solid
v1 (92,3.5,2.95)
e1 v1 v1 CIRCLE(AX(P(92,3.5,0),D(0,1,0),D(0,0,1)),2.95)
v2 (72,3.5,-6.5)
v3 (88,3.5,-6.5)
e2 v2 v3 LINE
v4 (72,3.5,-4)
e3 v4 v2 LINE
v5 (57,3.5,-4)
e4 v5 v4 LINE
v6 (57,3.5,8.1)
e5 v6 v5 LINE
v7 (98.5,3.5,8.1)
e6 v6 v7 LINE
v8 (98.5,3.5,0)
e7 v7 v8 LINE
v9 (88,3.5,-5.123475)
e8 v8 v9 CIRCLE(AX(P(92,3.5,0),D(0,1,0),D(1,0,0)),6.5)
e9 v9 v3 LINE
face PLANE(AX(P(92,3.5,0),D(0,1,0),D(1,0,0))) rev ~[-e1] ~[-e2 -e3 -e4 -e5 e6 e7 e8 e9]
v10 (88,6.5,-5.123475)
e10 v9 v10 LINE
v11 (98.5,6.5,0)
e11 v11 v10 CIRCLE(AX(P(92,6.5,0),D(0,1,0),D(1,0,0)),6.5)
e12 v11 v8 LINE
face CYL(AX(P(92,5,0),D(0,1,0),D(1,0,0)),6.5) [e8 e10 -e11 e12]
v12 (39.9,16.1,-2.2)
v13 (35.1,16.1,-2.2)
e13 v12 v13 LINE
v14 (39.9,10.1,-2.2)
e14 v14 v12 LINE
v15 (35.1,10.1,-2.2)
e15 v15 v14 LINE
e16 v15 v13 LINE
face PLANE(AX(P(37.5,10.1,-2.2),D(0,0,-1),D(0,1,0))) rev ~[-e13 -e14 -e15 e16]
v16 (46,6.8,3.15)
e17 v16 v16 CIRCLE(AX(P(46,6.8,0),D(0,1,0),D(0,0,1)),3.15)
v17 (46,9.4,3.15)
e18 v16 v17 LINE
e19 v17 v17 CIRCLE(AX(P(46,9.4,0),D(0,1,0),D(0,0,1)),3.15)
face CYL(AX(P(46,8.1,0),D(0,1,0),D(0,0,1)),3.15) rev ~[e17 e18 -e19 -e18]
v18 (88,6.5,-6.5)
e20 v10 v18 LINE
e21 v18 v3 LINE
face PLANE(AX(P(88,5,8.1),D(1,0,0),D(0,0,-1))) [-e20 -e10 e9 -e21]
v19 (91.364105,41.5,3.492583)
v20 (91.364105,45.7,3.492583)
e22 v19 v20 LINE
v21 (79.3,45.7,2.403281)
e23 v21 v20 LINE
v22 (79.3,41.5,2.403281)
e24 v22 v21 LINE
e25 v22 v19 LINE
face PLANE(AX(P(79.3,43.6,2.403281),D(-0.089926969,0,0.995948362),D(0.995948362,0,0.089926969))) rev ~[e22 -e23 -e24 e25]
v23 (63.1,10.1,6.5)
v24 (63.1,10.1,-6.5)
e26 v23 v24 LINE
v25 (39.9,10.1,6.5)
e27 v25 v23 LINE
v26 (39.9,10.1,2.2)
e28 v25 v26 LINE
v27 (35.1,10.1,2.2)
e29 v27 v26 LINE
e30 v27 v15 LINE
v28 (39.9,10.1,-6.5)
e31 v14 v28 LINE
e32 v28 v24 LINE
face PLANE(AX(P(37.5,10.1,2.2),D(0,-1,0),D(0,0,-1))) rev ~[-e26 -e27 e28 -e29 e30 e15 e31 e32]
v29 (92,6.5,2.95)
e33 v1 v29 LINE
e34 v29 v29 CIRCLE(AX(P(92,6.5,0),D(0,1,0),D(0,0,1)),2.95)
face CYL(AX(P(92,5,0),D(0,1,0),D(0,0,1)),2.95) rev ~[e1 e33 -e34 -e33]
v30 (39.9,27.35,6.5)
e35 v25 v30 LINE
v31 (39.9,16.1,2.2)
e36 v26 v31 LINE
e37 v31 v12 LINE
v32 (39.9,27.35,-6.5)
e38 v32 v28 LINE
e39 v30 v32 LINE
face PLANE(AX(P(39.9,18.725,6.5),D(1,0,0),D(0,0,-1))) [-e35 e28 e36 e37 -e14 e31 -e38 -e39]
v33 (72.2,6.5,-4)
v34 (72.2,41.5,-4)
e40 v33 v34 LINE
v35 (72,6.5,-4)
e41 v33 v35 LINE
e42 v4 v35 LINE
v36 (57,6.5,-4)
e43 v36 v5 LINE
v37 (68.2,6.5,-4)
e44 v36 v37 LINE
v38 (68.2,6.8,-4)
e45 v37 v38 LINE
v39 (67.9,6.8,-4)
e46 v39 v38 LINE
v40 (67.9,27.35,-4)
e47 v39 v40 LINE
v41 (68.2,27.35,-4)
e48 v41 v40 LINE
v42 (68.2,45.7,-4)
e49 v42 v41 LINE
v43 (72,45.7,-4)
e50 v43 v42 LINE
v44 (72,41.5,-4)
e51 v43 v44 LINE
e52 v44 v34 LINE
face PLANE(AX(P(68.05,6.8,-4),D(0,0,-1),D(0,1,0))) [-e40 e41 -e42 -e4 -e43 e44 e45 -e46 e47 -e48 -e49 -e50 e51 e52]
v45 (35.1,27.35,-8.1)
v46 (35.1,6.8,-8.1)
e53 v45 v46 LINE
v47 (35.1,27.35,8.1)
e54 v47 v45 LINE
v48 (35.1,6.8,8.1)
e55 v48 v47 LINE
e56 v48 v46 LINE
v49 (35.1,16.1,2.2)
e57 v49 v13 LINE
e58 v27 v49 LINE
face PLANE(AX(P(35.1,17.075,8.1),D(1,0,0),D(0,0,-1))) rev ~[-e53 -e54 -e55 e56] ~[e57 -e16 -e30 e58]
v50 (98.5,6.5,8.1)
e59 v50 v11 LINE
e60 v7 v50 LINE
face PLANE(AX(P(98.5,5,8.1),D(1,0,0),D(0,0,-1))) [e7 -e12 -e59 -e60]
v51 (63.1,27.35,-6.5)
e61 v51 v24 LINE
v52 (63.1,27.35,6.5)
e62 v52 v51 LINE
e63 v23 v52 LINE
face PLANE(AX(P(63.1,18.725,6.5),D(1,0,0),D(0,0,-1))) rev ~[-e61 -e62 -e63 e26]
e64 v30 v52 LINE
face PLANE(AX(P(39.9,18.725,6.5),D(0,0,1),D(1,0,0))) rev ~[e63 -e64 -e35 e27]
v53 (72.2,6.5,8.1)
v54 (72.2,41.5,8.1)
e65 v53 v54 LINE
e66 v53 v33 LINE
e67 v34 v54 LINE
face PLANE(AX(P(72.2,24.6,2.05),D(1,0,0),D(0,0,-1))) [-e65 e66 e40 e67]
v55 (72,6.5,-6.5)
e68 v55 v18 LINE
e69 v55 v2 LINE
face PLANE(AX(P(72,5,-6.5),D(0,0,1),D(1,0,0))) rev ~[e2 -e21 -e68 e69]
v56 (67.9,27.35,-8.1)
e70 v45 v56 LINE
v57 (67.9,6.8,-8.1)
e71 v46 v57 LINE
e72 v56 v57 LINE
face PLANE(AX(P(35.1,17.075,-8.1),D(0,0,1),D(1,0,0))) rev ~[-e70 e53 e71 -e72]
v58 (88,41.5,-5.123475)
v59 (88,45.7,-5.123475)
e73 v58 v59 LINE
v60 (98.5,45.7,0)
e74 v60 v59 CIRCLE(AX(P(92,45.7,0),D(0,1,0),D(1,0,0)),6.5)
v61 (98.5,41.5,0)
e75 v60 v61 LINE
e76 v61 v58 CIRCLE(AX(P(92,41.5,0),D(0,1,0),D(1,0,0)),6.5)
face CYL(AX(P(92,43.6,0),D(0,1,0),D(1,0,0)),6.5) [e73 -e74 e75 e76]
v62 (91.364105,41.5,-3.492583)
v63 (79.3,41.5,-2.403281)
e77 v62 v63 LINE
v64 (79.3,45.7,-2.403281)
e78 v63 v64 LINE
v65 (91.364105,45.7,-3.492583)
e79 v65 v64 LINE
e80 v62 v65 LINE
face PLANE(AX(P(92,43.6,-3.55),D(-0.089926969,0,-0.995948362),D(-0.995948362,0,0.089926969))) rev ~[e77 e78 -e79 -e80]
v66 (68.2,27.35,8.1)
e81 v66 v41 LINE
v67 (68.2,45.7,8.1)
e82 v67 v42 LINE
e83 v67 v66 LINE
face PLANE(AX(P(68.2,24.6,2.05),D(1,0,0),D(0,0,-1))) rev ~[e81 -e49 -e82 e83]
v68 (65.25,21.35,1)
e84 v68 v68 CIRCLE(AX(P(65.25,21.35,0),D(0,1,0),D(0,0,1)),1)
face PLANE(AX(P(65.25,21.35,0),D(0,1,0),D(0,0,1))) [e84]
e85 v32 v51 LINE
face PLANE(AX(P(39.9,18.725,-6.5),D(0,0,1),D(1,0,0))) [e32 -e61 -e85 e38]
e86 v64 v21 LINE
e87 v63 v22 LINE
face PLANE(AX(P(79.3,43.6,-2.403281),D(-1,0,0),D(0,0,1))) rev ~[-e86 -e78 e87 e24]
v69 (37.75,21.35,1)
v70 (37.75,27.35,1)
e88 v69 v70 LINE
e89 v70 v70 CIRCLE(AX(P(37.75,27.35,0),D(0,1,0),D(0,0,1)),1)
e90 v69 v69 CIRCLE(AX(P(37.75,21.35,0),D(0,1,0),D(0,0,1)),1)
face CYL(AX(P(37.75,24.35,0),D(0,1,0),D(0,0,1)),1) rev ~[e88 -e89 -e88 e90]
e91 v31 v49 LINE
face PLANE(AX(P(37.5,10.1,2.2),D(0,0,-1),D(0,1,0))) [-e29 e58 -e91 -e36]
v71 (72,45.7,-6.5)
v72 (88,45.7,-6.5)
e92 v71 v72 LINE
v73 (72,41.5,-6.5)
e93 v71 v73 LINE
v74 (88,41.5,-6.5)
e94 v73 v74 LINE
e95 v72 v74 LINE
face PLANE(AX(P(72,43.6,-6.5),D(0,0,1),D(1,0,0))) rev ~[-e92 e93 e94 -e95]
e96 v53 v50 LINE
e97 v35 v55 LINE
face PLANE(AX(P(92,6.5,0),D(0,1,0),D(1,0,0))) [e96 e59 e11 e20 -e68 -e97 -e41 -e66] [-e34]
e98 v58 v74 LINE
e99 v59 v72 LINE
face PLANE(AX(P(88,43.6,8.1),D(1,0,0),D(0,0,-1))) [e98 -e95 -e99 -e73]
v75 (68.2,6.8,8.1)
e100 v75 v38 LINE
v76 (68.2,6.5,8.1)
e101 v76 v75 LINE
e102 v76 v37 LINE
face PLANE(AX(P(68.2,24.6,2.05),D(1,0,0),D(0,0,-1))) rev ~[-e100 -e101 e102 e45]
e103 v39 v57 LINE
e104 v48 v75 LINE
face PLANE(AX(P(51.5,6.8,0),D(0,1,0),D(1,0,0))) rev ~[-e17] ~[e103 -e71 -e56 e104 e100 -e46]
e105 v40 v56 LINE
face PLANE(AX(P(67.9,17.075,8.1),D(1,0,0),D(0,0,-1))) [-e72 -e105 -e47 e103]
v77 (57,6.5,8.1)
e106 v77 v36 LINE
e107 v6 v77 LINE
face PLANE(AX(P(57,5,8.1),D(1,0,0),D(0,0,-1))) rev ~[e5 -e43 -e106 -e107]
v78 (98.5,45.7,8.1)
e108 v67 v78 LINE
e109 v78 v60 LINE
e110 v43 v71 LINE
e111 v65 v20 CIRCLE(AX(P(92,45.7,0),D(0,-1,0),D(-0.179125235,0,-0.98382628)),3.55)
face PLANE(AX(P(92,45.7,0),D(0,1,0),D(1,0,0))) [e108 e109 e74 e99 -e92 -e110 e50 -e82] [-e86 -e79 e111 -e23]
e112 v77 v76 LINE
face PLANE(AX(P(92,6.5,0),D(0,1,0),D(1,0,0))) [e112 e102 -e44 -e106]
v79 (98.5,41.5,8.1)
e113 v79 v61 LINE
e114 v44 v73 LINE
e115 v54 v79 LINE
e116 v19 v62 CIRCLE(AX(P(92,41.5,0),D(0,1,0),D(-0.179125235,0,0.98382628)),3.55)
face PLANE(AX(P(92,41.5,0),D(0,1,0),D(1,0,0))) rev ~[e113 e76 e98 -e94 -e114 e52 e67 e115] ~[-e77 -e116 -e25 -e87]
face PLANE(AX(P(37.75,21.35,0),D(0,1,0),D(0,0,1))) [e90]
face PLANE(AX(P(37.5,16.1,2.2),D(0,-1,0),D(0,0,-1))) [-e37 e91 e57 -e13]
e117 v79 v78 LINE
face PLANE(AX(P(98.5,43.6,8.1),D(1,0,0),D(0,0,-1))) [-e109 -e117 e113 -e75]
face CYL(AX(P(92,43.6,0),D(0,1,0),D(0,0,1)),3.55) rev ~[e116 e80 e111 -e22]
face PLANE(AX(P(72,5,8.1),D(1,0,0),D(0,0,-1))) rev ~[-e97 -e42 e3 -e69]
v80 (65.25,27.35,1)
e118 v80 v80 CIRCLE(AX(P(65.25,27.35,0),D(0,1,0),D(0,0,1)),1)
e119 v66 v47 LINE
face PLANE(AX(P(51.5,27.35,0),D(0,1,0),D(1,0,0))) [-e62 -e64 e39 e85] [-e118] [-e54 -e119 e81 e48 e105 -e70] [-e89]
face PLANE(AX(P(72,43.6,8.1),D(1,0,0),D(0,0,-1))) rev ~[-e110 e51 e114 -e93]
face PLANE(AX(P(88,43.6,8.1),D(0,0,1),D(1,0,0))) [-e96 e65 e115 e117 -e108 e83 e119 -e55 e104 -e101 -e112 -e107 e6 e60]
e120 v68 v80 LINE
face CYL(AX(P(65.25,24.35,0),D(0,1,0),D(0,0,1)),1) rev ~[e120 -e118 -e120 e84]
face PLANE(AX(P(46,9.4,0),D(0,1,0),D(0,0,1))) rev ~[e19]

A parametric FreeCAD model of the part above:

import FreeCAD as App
import Part
import Sketcher
Q = App.Units.Quantity

doc = App.newDocument("Part")
body = doc.addObject("PartDesign::Body", "Body")

# Sketch on XZ plane
sketch1 = body.newObject("Sketcher::SketchObject", "Sketch")
sketch1.AttachmentSupport = (doc.getObject("XZ_Plane"), [""])
sketch1.MapMode = "FlatFace"
sketch1.AttachmentOffset = App.Placement(App.Vector(0, 0, -17.075), App.Rotation())
sketch1.addGeometry([
    Part.LineSegment(App.Vector(35, -8, 0), App.Vector(35, 8, 0)),
    Part.LineSegment(App.Vector(35, 8, 0), App.Vector(68, 8, 0)),
    Part.LineSegment(App.Vector(68, 8, 0), App.Vector(68, -8, 0)),
    Part.LineSegment(App.Vector(68, -8, 0), App.Vector(35, -8, 0)),
], False)
sketch1.addConstraint([
    Sketcher.Constraint("Coincident", 0, 2, 1, 1),
    Sketcher.Constraint("Coincident", 1, 2, 2, 1),
    Sketcher.Constraint("Coincident", 2, 2, 3, 1),
    Sketcher.Constraint("Coincident", 3, 2, 0, 1),
    Sketcher.Constraint("Vertical", 0),
    Sketcher.Constraint("Horizontal", 1),
    Sketcher.Constraint("Vertical", 2),
    Sketcher.Constraint("Horizontal", 3),
    Sketcher.Constraint("DistanceX", 1, 1, 1, 2, Q("32.8 mm")),
    Sketcher.Constraint("DistanceY", 0, 1, 0, 2, Q("16.2 mm")),
    Sketcher.Constraint("DistanceX", -1, 1, 0, 2, Q("35.1 mm")),
    Sketcher.Constraint("DistanceY", -1, 1, 0, 2, Q("8.1 mm")),
])
pad1 = body.newObject("PartDesign::Pad", "Pad")
pad1.Profile = sketch1
pad1.Length = 20.55
pad1.Midplane = True
body2 = doc.addObject("PartDesign::Body", "Body001")

# Sketch on XZ plane
sketch2 = body2.newObject("Sketcher::SketchObject", "Sketch001")
sketch2.AttachmentSupport = (doc.getObject("XZ_Plane001"), [""])
sketch2.MapMode = "FlatFace"
sketch2.AttachmentOffset = App.Placement(App.Vector(0, 0, -5), App.Rotation())
sketch2.addGeometry([
    Part.LineSegment(App.Vector(57, -4, 0), App.Vector(57, 8, 0)),
    Part.LineSegment(App.Vector(57, 8, 0), App.Vector(88, 8, 0)),
    Part.LineSegment(App.Vector(88, 8, 0), App.Vector(88, -4, 0)),
    Part.LineSegment(App.Vector(88, -4, 0), App.Vector(57, -4, 0)),
], False)
sketch2.addConstraint([
    Sketcher.Constraint("Coincident", 0, 2, 1, 1),
    Sketcher.Constraint("Coincident", 1, 2, 2, 1),
    Sketcher.Constraint("Coincident", 2, 2, 3, 1),
    Sketcher.Constraint("Coincident", 3, 2, 0, 1),
    Sketcher.Constraint("Vertical", 0),
    Sketcher.Constraint("Horizontal", 1),
    Sketcher.Constraint("Vertical", 2),
    Sketcher.Constraint("Horizontal", 3),
    Sketcher.Constraint("DistanceX", 1, 1, 1, 2, Q("31 mm")),
    Sketcher.Constraint("DistanceY", 0, 1, 0, 2, Q("12.1 mm")),
    Sketcher.Constraint("DistanceX", -1, 1, 0, 2, Q("57 mm")),
    Sketcher.Constraint("DistanceY", 2, 2, -1, 1, Q("4 mm")),
])
pad2 = body2.newObject("PartDesign::Pad", "Pad001")
pad2.Profile = sketch2
pad2.Length = 3
pad2.Midplane = True

# Sketch on XZ plane
sketch3 = body2.newObject("Sketcher::SketchObject", "Sketch002")
sketch3.AttachmentSupport = (doc.getObject("XZ_Plane001"), [""])
sketch3.MapMode = "FlatFace"
sketch3.AttachmentOffset = App.Placement(App.Vector(0, 0, -5), App.Rotation())
sketch3.addGeometry([
    Part.LineSegment(App.Vector(72, -6, 0), App.Vector(72, 8, 0)),
    Part.LineSegment(App.Vector(72, 8, 0), App.Vector(88, 8, 0)),
    Part.LineSegment(App.Vector(88, 8, 0), App.Vector(88, -6, 0)),
    Part.LineSegment(App.Vector(88, -6, 0), App.Vector(72, -6, 0)),
], False)
sketch3.addConstraint([
    Sketcher.Constraint("Coincident", 0, 2, 1, 1),
    Sketcher.Constraint("Coincident", 1, 2, 2, 1),
    Sketcher.Constraint("Coincident", 2, 2, 3, 1),
    Sketcher.Constraint("Coincident", 3, 2, 0, 1),
    Sketcher.Constraint("Vertical", 0),
    Sketcher.Constraint("Horizontal", 1),
    Sketcher.Constraint("Vertical", 2),
    Sketcher.Constraint("Horizontal", 3),
    Sketcher.Constraint("DistanceX", 1, 1, 1, 2, Q("16 mm")),
    Sketcher.Constraint("DistanceY", 0, 1, 0, 2, Q("14.6 mm")),
    Sketcher.Constraint("DistanceX", -1, 1, 0, 2, Q("72 mm")),
    Sketcher.Constraint("DistanceY", -1, 1, 0, 2, Q("8.1 mm")),
])
pad3 = body2.newObject("PartDesign::Pad", "Pad002")
pad3.Profile = sketch3
pad3.Length = 3
pad3.Midplane = True

# Sketch on XZ plane
sketch4 = body2.newObject("Sketcher::SketchObject", "Sketch003")
sketch4.AttachmentSupport = (doc.getObject("XZ_Plane001"), [""])
sketch4.MapMode = "FlatFace"
sketch4.AttachmentOffset = App.Placement(App.Vector(0, 0, -5), App.Rotation())
sketch4.addGeometry([
    Part.LineSegment(App.Vector(88, 0, 0), App.Vector(88, 8, 0)),
    Part.LineSegment(App.Vector(88, 8, 0), App.Vector(98, 8, 0)),
    Part.LineSegment(App.Vector(98, 8, 0), App.Vector(98, 0, 0)),
    Part.LineSegment(App.Vector(98, 0, 0), App.Vector(88, 0, 0)),
], False)
sketch4.addConstraint([
    Sketcher.Constraint("Coincident", 0, 2, 1, 1),
    Sketcher.Constraint("Coincident", 1, 2, 2, 1),
    Sketcher.Constraint("Coincident", 2, 2, 3, 1),
    Sketcher.Constraint("Coincident", 3, 2, 0, 1),
    Sketcher.Constraint("Vertical", 0),
    Sketcher.Constraint("Horizontal", 1),
    Sketcher.Constraint("Vertical", 2),
    Sketcher.Constraint("Horizontal", 3),
    Sketcher.Constraint("PointOnObject", 2, 2, -1),
    Sketcher.Constraint("DistanceX", 1, 1, 1, 2, Q("10.5 mm")),
    Sketcher.Constraint("DistanceY", 0, 1, 0, 2, Q("8.1 mm")),
    Sketcher.Constraint("DistanceX", -1, 1, 0, 2, Q("88 mm")),
])
pad4 = body2.newObject("PartDesign::Pad", "Pad003")
pad4.Profile = sketch4
pad4.Length = 3
pad4.Midplane = True

# Sketch on XZ plane
sketch5 = body2.newObject("Sketcher::SketchObject", "Sketch004")
sketch5.AttachmentSupport = (doc.getObject("XZ_Plane001"), [""])
sketch5.MapMode = "FlatFace"
sketch5.AttachmentOffset = App.Placement(App.Vector(0, 0, -5), App.Rotation())
sketch5.addGeometry(Part.Circle(App.Vector(92, 0, 0), App.Vector(0, 0, 1), 6), False)
sketch5.addConstraint([
    Sketcher.Constraint("PointOnObject", 0, 3, -1),
    Sketcher.Constraint("Diameter", 0, Q("13 mm")),
    Sketcher.Constraint("DistanceX", -1, 1, 0, 3, Q("92 mm")),
])
pad5 = body2.newObject("PartDesign::Pad", "Pad004")
pad5.Profile = sketch5
pad5.Length = 3
pad5.Midplane = True

# Sketch on XZ plane
sketch6 = body2.newObject("Sketcher::SketchObject", "Sketch005")
sketch6.AttachmentSupport = (doc.getObject("XZ_Plane001"), [""])
sketch6.MapMode = "FlatFace"
sketch6.AttachmentOffset = App.Placement(App.Vector(0, 0, -5), App.Rotation())
sketch6.addGeometry(Part.Circle(App.Vector(92, 0, 0), App.Vector(0, 0, 1), 3), False)
sketch6.addConstraint([
    Sketcher.Constraint("PointOnObject", 0, 3, -1),
    Sketcher.Constraint("Diameter", 0, Q("5.9 mm")),
    Sketcher.Constraint("DistanceX", -1, 1, 0, 3, Q("92 mm")),
])
pocket1 = body2.newObject("PartDesign::Pocket", "Pocket")
pocket1.Profile = sketch6
pocket1.Length = 3
pocket1.Midplane = True

# Sketch on YZ plane
sketch7 = body2.newObject("Sketcher::SketchObject", "Sketch006")
sketch7.AttachmentSupport = (doc.getObject("YZ_Plane001"), [""])
sketch7.MapMode = "FlatFace"
sketch7.AttachmentOffset = App.Placement(App.Vector(0, 0, 70.2), App.Rotation())
sketch7.addGeometry([
    Part.LineSegment(App.Vector(46, 8, 0), App.Vector(4, 8, 0)),
    Part.LineSegment(App.Vector(4, 8, 0), App.Vector(4, -4, 0)),
    Part.LineSegment(App.Vector(4, -4, 0), App.Vector(46, -4, 0)),
    Part.LineSegment(App.Vector(46, -4, 0), App.Vector(46, 8, 0)),
], False)
sketch7.addConstraint([
    Sketcher.Constraint("Coincident", 0, 2, 1, 1),
    Sketcher.Constraint("Coincident", 1, 2, 2, 1),
    Sketcher.Constraint("Coincident", 2, 2, 3, 1),
    Sketcher.Constraint("Coincident", 3, 2, 0, 1),
    Sketcher.Constraint("Horizontal", 0),
    Sketcher.Constraint("Vertical", 1),
    Sketcher.Constraint("Horizontal", 2),
    Sketcher.Constraint("Vertical", 3),
    Sketcher.Constraint("DistanceX", 0, 2, 0, 1, Q("42.2 mm")),
    Sketcher.Constraint("DistanceY", 1, 2, 1, 1, Q("12.1 mm")),
    Sketcher.Constraint("DistanceY", 1, 2, -1, 1, Q("4 mm")),
    Sketcher.Constraint("DistanceX", -1, 1, 0, 2, Q("3.5 mm")),
])
pad6 = body2.newObject("PartDesign::Pad", "Pad005")
pad6.Profile = sketch7
pad6.Length = 4
pad6.Midplane = True
body.AllowCompound = True
doc.recompute()

boolean = body.newObject("PartDesign::Boolean", "Boolean")
boolean.Type = "Fuse"
boolean.addObjects([body2])

# Sketch on YZ plane
sketch8 = body.newObject("Sketcher::SketchObject", "Sketch007")
sketch8.AttachmentSupport = (doc.getObject("YZ_Plane"), [""])
sketch8.MapMode = "FlatFace"
sketch8.AttachmentOffset = App.Placement(App.Vector(0, 0, 68.05), App.Rotation())
sketch8.addGeometry([
    Part.LineSegment(App.Vector(27, 8, 0), App.Vector(7, 8, 0)),
    Part.LineSegment(App.Vector(7, 8, 0), App.Vector(7, -4, 0)),
    Part.LineSegment(App.Vector(7, -4, 0), App.Vector(27, -4, 0)),
    Part.LineSegment(App.Vector(27, -4, 0), App.Vector(27, 8, 0)),
], False)
sketch8.addConstraint([
    Sketcher.Constraint("Coincident", 0, 2, 1, 1),
    Sketcher.Constraint("Coincident", 1, 2, 2, 1),
    Sketcher.Constraint("Coincident", 2, 2, 3, 1),
    Sketcher.Constraint("Coincident", 3, 2, 0, 1),
    Sketcher.Constraint("Horizontal", 0),
    Sketcher.Constraint("Vertical", 1),
    Sketcher.Constraint("Horizontal", 2),
    Sketcher.Constraint("Vertical", 3),
    Sketcher.Constraint("DistanceY", 1, 2, 1, 1, Q("12.1 mm")),
    Sketcher.Constraint("DistanceY", 1, 2, -1, 1, Q("4 mm")),
    Sketcher.Constraint("DistanceX", 0, 2, 0, 1, Q("20.55 mm")),
    Sketcher.Constraint("DistanceX", -1, 1, 0, 2, Q("6.8 mm")),
])
pad7 = body.newObject("PartDesign::Pad", "Pad006")
pad7.Profile = sketch8
pad7.Length = 2.3
pad7.Midplane = True

# Sketch on XZ plane
sketch9 = body.newObject("Sketcher::SketchObject", "Sketch008")
sketch9.AttachmentSupport = (doc.getObject("XZ_Plane"), [""])
sketch9.MapMode = "FlatFace"
sketch9.AttachmentOffset = App.Placement(App.Vector(0, 0, -43.6), App.Rotation())
sketch9.addGeometry([
    Part.LineSegment(App.Vector(68, -4, 0), App.Vector(68, 8, 0)),
    Part.LineSegment(App.Vector(68, 8, 0), App.Vector(88, 8, 0)),
    Part.LineSegment(App.Vector(88, 8, 0), App.Vector(88, -4, 0)),
    Part.LineSegment(App.Vector(88, -4, 0), App.Vector(68, -4, 0)),
], False)
sketch9.addConstraint([
    Sketcher.Constraint("Coincident", 0, 2, 1, 1),
    Sketcher.Constraint("Coincident", 1, 2, 2, 1),
    Sketcher.Constraint("Coincident", 2, 2, 3, 1),
    Sketcher.Constraint("Coincident", 3, 2, 0, 1),
    Sketcher.Constraint("Vertical", 0),
    Sketcher.Constraint("Horizontal", 1),
    Sketcher.Constraint("Vertical", 2),
    Sketcher.Constraint("Horizontal", 3),
    Sketcher.Constraint("DistanceX", 1, 1, 1, 2, Q("19.8 mm")),
    Sketcher.Constraint("DistanceY", 0, 1, 0, 2, Q("12.1 mm")),
    Sketcher.Constraint("DistanceX", -1, 1, 1, 2, Q("88 mm")),
    Sketcher.Constraint("DistanceY", 2, 2, -1, 1, Q("4 mm")),
])
pad8 = body.newObject("PartDesign::Pad", "Pad007")
pad8.Profile = sketch9
pad8.Length = 4.2
pad8.Midplane = True

# Sketch on XZ plane
sketch10 = body.newObject("Sketcher::SketchObject", "Sketch009")
sketch10.AttachmentSupport = (doc.getObject("XZ_Plane"), [""])
sketch10.MapMode = "FlatFace"
sketch10.AttachmentOffset = App.Placement(App.Vector(0, 0, -43.6), App.Rotation())
sketch10.addGeometry([
    Part.LineSegment(App.Vector(72, -6, 0), App.Vector(72, 8, 0)),
    Part.LineSegment(App.Vector(72, 8, 0), App.Vector(88, 8, 0)),
    Part.LineSegment(App.Vector(88, 8, 0), App.Vector(88, -6, 0)),
    Part.LineSegment(App.Vector(88, -6, 0), App.Vector(72, -6, 0)),
], False)
sketch10.addConstraint([
    Sketcher.Constraint("Coincident", 0, 2, 1, 1),
    Sketcher.Constraint("Coincident", 1, 2, 2, 1),
    Sketcher.Constraint("Coincident", 2, 2, 3, 1),
    Sketcher.Constraint("Coincident", 3, 2, 0, 1),
    Sketcher.Constraint("Vertical", 0),
    Sketcher.Constraint("Horizontal", 1),
    Sketcher.Constraint("Vertical", 2),
    Sketcher.Constraint("Horizontal", 3),
    Sketcher.Constraint("DistanceX", 1, 1, 1, 2, Q("16 mm")),
    Sketcher.Constraint("DistanceY", 0, 1, 0, 2, Q("14.6 mm")),
    Sketcher.Constraint("DistanceX", -1, 1, 0, 2, Q("72 mm")),
    Sketcher.Constraint("DistanceY", -1, 1, 0, 2, Q("8.1 mm")),
])
pad9 = body.newObject("PartDesign::Pad", "Pad008")
pad9.Profile = sketch10
pad9.Length = 4.2
pad9.Midplane = True

# Sketch on XZ plane
sketch11 = body.newObject("Sketcher::SketchObject", "Sketch010")
sketch11.AttachmentSupport = (doc.getObject("XZ_Plane"), [""])
sketch11.MapMode = "FlatFace"
sketch11.AttachmentOffset = App.Placement(App.Vector(0, 0, -43.6), App.Rotation())
sketch11.addGeometry([
    Part.LineSegment(App.Vector(88, 0, 0), App.Vector(88, 8, 0)),
    Part.LineSegment(App.Vector(88, 8, 0), App.Vector(98, 8, 0)),
    Part.LineSegment(App.Vector(98, 8, 0), App.Vector(98, 0, 0)),
    Part.LineSegment(App.Vector(98, 0, 0), App.Vector(88, 0, 0)),
], False)
sketch11.addConstraint([
    Sketcher.Constraint("Coincident", 0, 2, 1, 1),
    Sketcher.Constraint("Coincident", 1, 2, 2, 1),
    Sketcher.Constraint("Coincident", 2, 2, 3, 1),
    Sketcher.Constraint("Coincident", 3, 2, 0, 1),
    Sketcher.Constraint("Vertical", 0),
    Sketcher.Constraint("Horizontal", 1),
    Sketcher.Constraint("Vertical", 2),
    Sketcher.Constraint("Horizontal", 3),
    Sketcher.Constraint("PointOnObject", 2, 2, -1),
    Sketcher.Constraint("DistanceX", 1, 1, 1, 2, Q("10.5 mm")),
    Sketcher.Constraint("DistanceY", 0, 1, 0, 2, Q("8.1 mm")),
    Sketcher.Constraint("DistanceX", -1, 1, 0, 2, Q("88 mm")),
])
pad10 = body.newObject("PartDesign::Pad", "Pad009")
pad10.Profile = sketch11
pad10.Length = 4.2
pad10.Midplane = True

# Sketch on XZ plane
sketch12 = body.newObject("Sketcher::SketchObject", "Sketch011")
sketch12.AttachmentSupport = (doc.getObject("XZ_Plane"), [""])
sketch12.MapMode = "FlatFace"
sketch12.AttachmentOffset = App.Placement(App.Vector(0, 0, -43.6), App.Rotation())
sketch12.addGeometry(Part.Circle(App.Vector(92, 0, 0), App.Vector(0, 0, 1), 6), False)
sketch12.addConstraint([
    Sketcher.Constraint("PointOnObject", 0, 3, -1),
    Sketcher.Constraint("Diameter", 0, Q("13 mm")),
    Sketcher.Constraint("DistanceX", -1, 1, 0, 3, Q("92 mm")),
])
pad11 = body.newObject("PartDesign::Pad", "Pad010")
pad11.Profile = sketch12
pad11.Length = 4.2
pad11.Midplane = True

# Sketch on XZ plane
sketch13 = body.newObject("Sketcher::SketchObject", "Sketch012")
sketch13.AttachmentSupport = (doc.getObject("XZ_Plane"), [""])
sketch13.MapMode = "FlatFace"
sketch13.AttachmentOffset = App.Placement(App.Vector(0, 0, -43.6), App.Rotation())
sketch13.addGeometry(Part.Circle(App.Vector(92, 0, 0), App.Vector(0, 0, 1), 3.5), False)
sketch13.addConstraint([
    Sketcher.Constraint("PointOnObject", 0, 3, -1),
    Sketcher.Constraint("Diameter", 0, Q("7.1 mm")),
    Sketcher.Constraint("DistanceX", -1, 1, 0, 3, Q("92 mm")),
])
pocket2 = body.newObject("PartDesign::Pocket", "Pocket001")
pocket2.Profile = sketch13
pocket2.Length = 4.2
pocket2.Midplane = True

# Sketch on XZ plane
sketch14 = body.newObject("Sketcher::SketchObject", "Sketch013")
sketch14.AttachmentSupport = (doc.getObject("XZ_Plane"), [""])
sketch14.MapMode = "FlatFace"
sketch14.AttachmentOffset = App.Placement(App.Vector(0, 0, -43.6), App.Rotation())
sketch14.addGeometry([
    Part.LineSegment(App.Vector(92, -3.5, 0), App.Vector(79.3, -2.4, 0)),
    Part.LineSegment(App.Vector(79.3, -2.4, 0), App.Vector(79.3, 2.4, 0)),
    Part.LineSegment(App.Vector(79.3, 2.4, 0), App.Vector(92, 3.5, 0)),
    Part.LineSegment(App.Vector(92, 3.5, 0), App.Vector(92, -3.5, 0)),
], False)
sketch14.addConstraint([
    Sketcher.Constraint("Coincident", 0, 2, 1, 1),
    Sketcher.Constraint("Coincident", 1, 2, 2, 1),
    Sketcher.Constraint("Coincident", 2, 2, 3, 1),
    Sketcher.Constraint("Coincident", 3, 2, 0, 1),
    Sketcher.Constraint("Vertical", 1),
    Sketcher.Constraint("Vertical", 3),
    Sketcher.Constraint("Equal", 0, 2),
    Sketcher.Constraint("DistanceY", 3, 2, 3, 1, Q("7.1 mm")),
    Sketcher.Constraint("DistanceX", -1, 1, 2, 2, Q("92 mm")),
    Sketcher.Constraint("DistanceX", -1, 1, 0, 2, Q("79.3 mm")),
    Sketcher.Constraint("DistanceY", -1, 1, 2, 2, Q("3.55 mm")),
    Sketcher.Constraint("DistanceY", 1, 1, 1, 2, Q("4.806563 mm")),
])
pocket3 = body.newObject("PartDesign::Pocket", "Pocket002")
pocket3.Profile = sketch14
pocket3.Length = 4.2
pocket3.Midplane = True

# Sketch on XZ plane
sketch15 = body.newObject("Sketcher::SketchObject", "Sketch014")
sketch15.AttachmentSupport = (doc.getObject("XZ_Plane"), [""])
sketch15.MapMode = "FlatFace"
sketch15.AttachmentOffset = App.Placement(App.Vector(0, 0, -18.725), App.Rotation())
sketch15.addGeometry([
    Part.LineSegment(App.Vector(40, -6, 0), App.Vector(40, 6, 0)),
    Part.LineSegment(App.Vector(40, 6, 0), App.Vector(63, 6, 0)),
    Part.LineSegment(App.Vector(63, 6, 0), App.Vector(63, -6, 0)),
    Part.LineSegment(App.Vector(63, -6, 0), App.Vector(40, -6, 0)),
], False)
sketch15.addConstraint([
    Sketcher.Constraint("Coincident", 0, 2, 1, 1),
    Sketcher.Constraint("Coincident", 1, 2, 2, 1),
    Sketcher.Constraint("Coincident", 2, 2, 3, 1),
    Sketcher.Constraint("Coincident", 3, 2, 0, 1),
    Sketcher.Constraint("Vertical", 0),
    Sketcher.Constraint("Horizontal", 1),
    Sketcher.Constraint("Vertical", 2),
    Sketcher.Constraint("Horizontal", 3),
    Sketcher.Constraint("DistanceY", 0, 1, 0, 2, Q("13 mm")),
    Sketcher.Constraint("DistanceX", 1, 1, 1, 2, Q("23.2 mm")),
    Sketcher.Constraint("DistanceX", -1, 1, 0, 2, Q("39.9 mm")),
    Sketcher.Constraint("DistanceY", -1, 1, 0, 2, Q("6.5 mm")),
])
pocket4 = body.newObject("PartDesign::Pocket", "Pocket003")
pocket4.Profile = sketch15
pocket4.Length = 17.25
pocket4.Midplane = True

# Sketch on XZ plane
sketch16 = body.newObject("Sketcher::SketchObject", "Sketch015")
sketch16.AttachmentSupport = (doc.getObject("XZ_Plane"), [""])
sketch16.MapMode = "FlatFace"
sketch16.AttachmentOffset = App.Placement(App.Vector(0, 0, -24.35), App.Rotation())
sketch16.addGeometry(Part.Circle(App.Vector(65.2, 0, 0), App.Vector(0, 0, 1), 1), False)
sketch16.addConstraint([
    Sketcher.Constraint("PointOnObject", 0, 3, -1),
    Sketcher.Constraint("Diameter", 0, Q("2 mm")),
    Sketcher.Constraint("DistanceX", -1, 1, 0, 3, Q("65.25 mm")),
])
pocket5 = body.newObject("PartDesign::Pocket", "Pocket004")
pocket5.Profile = sketch16
pocket5.Length = 6
pocket5.Midplane = True

# Sketch on XZ plane
sketch17 = body.newObject("Sketcher::SketchObject", "Sketch016")
sketch17.AttachmentSupport = (doc.getObject("XZ_Plane"), [""])
sketch17.MapMode = "FlatFace"
sketch17.AttachmentOffset = App.Placement(App.Vector(0, 0, -24.35), App.Rotation())
sketch17.addGeometry(Part.Circle(App.Vector(37.8, 0, 0), App.Vector(0, 0, 1), 1), False)
sketch17.addConstraint([
    Sketcher.Constraint("PointOnObject", 0, 3, -1),
    Sketcher.Constraint("Diameter", 0, Q("2 mm")),
    Sketcher.Constraint("DistanceX", -1, 1, 0, 3, Q("37.75 mm")),
])
pocket6 = body.newObject("PartDesign::Pocket", "Pocket005")
pocket6.Profile = sketch17
pocket6.Length = 6
pocket6.Midplane = True

# Sketch on XZ plane
sketch18 = body.newObject("Sketcher::SketchObject", "Sketch017")
sketch18.AttachmentSupport = (doc.getObject("XZ_Plane"), [""])
sketch18.MapMode = "FlatFace"
sketch18.AttachmentOffset = App.Placement(App.Vector(0, 0, -8.1), App.Rotation())
sketch18.addGeometry(Part.Circle(App.Vector(46, 0, 0), App.Vector(0, 0, 1), 3.1), False)
sketch18.addConstraint([
    Sketcher.Constraint("PointOnObject", 0, 3, -1),
    Sketcher.Constraint("Diameter", 0, Q("6.3 mm")),
    Sketcher.Constraint("DistanceX", -1, 1, 0, 3, Q("46 mm")),
])
pocket7 = body.newObject("PartDesign::Pocket", "Pocket006")
pocket7.Profile = sketch18
pocket7.Length = 2.6
pocket7.Midplane = True

# Sketch on YZ plane
sketch19 = body.newObject("Sketcher::SketchObject", "Sketch018")
sketch19.AttachmentSupport = (doc.getObject("YZ_Plane"), [""])
sketch19.MapMode = "FlatFace"
sketch19.AttachmentOffset = App.Placement(App.Vector(0, 0, 37.5), App.Rotation())
sketch19.addGeometry([
    Part.LineSegment(App.Vector(16.1, 2.2, 0), App.Vector(10.1, 2.2, 0)),
    Part.LineSegment(App.Vector(10.1, 2.2, 0), App.Vector(10.1, -2.2, 0)),
    Part.LineSegment(App.Vector(10.1, -2.2, 0), App.Vector(16.1, -2.2, 0)),
    Part.LineSegment(App.Vector(16.1, -2.2, 0), App.Vector(16.1, 2.2, 0)),
], False)
sketch19.addConstraint([
    Sketcher.Constraint("Coincident", 0, 2, 1, 1),
    Sketcher.Constraint("Coincident", 1, 2, 2, 1),
    Sketcher.Constraint("Coincident", 2, 2, 3, 1),
    Sketcher.Constraint("Coincident", 3, 2, 0, 1),
    Sketcher.Constraint("Horizontal", 0),
    Sketcher.Constraint("Vertical", 1),
    Sketcher.Constraint("Horizontal", 2),
    Sketcher.Constraint("Vertical", 3),
    Sketcher.Constraint("DistanceX", 0, 2, 0, 1, Q("6 mm")),
    Sketcher.Constraint("DistanceY", 1, 2, 1, 1, Q("4.4 mm")),
    Sketcher.Constraint("DistanceX", -1, 1, 0, 2, Q("10.1 mm")),
    Sketcher.Constraint("DistanceY", -1, 1, 0, 2, Q("2.2 mm")),
])
pocket8 = body.newObject("PartDesign::Pocket", "Pocket007")
pocket8.Profile = sketch19
pocket8.Length = 4.8
pocket8.Midplane = True

doc.recompute()
